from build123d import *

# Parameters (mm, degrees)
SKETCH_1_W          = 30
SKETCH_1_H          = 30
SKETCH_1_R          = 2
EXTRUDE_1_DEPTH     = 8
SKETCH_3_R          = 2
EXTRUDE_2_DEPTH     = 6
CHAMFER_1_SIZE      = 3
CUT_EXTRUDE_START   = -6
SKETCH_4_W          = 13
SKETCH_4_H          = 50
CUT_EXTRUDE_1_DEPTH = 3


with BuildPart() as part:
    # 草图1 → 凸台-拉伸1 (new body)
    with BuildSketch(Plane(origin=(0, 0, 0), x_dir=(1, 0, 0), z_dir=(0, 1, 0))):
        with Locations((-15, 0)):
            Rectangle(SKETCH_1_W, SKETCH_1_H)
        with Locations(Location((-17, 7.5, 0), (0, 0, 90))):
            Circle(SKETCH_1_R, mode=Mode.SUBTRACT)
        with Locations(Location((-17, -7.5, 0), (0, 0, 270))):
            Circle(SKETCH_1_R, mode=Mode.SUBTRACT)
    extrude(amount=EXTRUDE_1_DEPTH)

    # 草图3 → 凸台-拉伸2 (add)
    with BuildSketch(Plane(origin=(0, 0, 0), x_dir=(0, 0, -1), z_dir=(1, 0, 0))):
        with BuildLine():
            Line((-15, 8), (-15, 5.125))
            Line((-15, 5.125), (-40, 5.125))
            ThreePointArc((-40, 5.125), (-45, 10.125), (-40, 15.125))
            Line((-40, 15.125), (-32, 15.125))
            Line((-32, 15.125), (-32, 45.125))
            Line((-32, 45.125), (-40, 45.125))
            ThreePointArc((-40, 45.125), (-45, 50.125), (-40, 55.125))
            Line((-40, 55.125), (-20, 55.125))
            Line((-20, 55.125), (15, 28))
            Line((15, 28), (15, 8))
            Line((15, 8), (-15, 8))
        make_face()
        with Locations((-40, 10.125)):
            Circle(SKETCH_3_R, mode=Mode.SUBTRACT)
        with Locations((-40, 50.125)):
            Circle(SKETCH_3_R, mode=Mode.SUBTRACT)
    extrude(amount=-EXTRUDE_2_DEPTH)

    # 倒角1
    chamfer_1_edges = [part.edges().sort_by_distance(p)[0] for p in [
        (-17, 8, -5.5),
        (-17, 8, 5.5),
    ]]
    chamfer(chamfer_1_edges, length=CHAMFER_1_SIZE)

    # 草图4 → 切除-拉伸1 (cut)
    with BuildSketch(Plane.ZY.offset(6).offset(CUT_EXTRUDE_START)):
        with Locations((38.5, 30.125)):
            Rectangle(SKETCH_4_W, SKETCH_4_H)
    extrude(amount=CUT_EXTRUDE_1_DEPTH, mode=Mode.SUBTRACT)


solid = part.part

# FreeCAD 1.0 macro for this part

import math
import FreeCAD as App
import Part
import Sketcher

V = App.Vector
Q = App.Units.Quantity


def edges_at(feature, points):
    """Names of the edges that pass closest to the given points."""
    edges = feature.Shape.Edges
    near = lambda p: min(range(len(edges)), key=lambda i: edges[i].distToShape(Part.Vertex(*p))[0])
    return sorted({f"Edge{near(p) + 1}" for p in points})

doc = App.newDocument("Part")
params = doc.addObject("Spreadsheet::Sheet", "Params")
for row, (alias, value) in enumerate([
    ("sketch1_diameter", "4 mm"),
    ("sketch1_width", "30 mm"),
    ("pad1_length", "8 mm"),
    ("sketch2_diameter", "4 mm"),
    ("sketch2_radius", "5 mm"),
    ("sketch2_width", "20 mm"),
    ("sketch2_width2", "30 mm"),
    ("sketch2_height", "8 mm"),
    ("pad2_length", "6 mm"),
    ("chamfer_size", "3 mm"),
    ("sketch3_width", "50 mm"),
    ("sketch3_height", "13 mm"),
    ("pocket1_length", "3 mm"),
], start=1):
    params.set(f"A{row}", alias)
    params.set(f"B{row}", "=" + value)
    params.setAlias(f"B{row}", alias)

body = doc.addObject("PartDesign::Body", "Body")

sketch1 = body.newObject("Sketcher::SketchObject", "Sketch")
sketch1.AttachmentSupport = (doc.getObject("XZ_Plane"), [""])
sketch1.MapMode = "FlatFace"
sketch1.addGeometry(Part.LineSegment(V(-30, -15, 0), V(-30, 15, 0)), False)
sketch1.addGeometry(Part.LineSegment(V(-30, 15, 0), V(0, 15, 0)), False)
sketch1.addGeometry(Part.LineSegment(V(0, 15, 0), V(0, -15, 0)), False)
sketch1.addGeometry(Part.LineSegment(V(0, -15, 0), V(-30, -15, 0)), False)
sketch1.addGeometry(Part.Circle(V(-17, 7.5, 0), V(0, 0, 1), 2), False)
sketch1.addGeometry(Part.Circle(V(-17, -7.5, 0), V(0, 0, 1), 2), False)
sketch1.addConstraint(Sketcher.Constraint("Coincident", 0, 2, 1, 1))
sketch1.addConstraint(Sketcher.Constraint("Coincident", 1, 2, 2, 1))
sketch1.addConstraint(Sketcher.Constraint("Coincident", 2, 2, 3, 1))
sketch1.addConstraint(Sketcher.Constraint("Coincident", 3, 2, 0, 1))
sketch1.addConstraint(Sketcher.Constraint("Vertical", 0))
sketch1.addConstraint(Sketcher.Constraint("Horizontal", 1))
sketch1.addConstraint(Sketcher.Constraint("Vertical", 2))
sketch1.addConstraint(Sketcher.Constraint("Horizontal", 3))
sketch1.addConstraint(Sketcher.Constraint("Equal", 4, 5))
sketch1.addConstraint(Sketcher.Constraint("Symmetric", 1, 2, 2, 2, -1, 1))
sketch1.addConstraint(Sketcher.Constraint("Symmetric", 4, 3, 5, 3, -1))
sketch1.addConstraint(Sketcher.Constraint("Equal", 3, 0))
sketch1.addConstraint(Sketcher.Constraint("Diameter", 4, Q("4 mm")))
sketch1.addConstraint(Sketcher.Constraint("DistanceX", 1, 1, 1, 2, Q("30 mm")))
sketch1.addConstraint(Sketcher.Constraint("DistanceX", 4, 3, -1, 1, Q("17 mm")))
sketch1.addConstraint(Sketcher.Constraint("DistanceY", 5, 3, 4, 3, Q("15 mm")))
sketch1.setExpression("Constraints[12]", "Params.sketch1_diameter")
sketch1.setExpression("Constraints[13]", "Params.sketch1_width")
pad1 = body.newObject("PartDesign::Pad", "Pad")
pad1.Profile = sketch1
pad1.setExpression("Length", "Params.pad1_length")
pad1.Reversed = True

sketch2 = body.newObject("Sketcher::SketchObject", "Sketch001")
sketch2.AttachmentSupport = (doc.getObject("YZ_Plane"), [""])
sketch2.MapMode = "FlatFace"
sketch2.addGeometry(Part.LineSegment(V(5.1, 15, 0), V(8, 15, 0)), False)
sketch2.addGeometry(Part.LineSegment(V(8, 15, 0), V(8, -15, 0)), False)
sketch2.addGeometry(Part.LineSegment(V(8, -15, 0), V(28, -15, 0)), False)
sketch2.addGeometry(Part.LineSegment(V(28, -15, 0), V(55.1, 20, 0)), False)
sketch2.addGeometry(Part.LineSegment(V(55.1, 20, 0), V(55.1, 40, 0)), False)
sketch2.addGeometry(Part.ArcOfCircle(Part.Circle(V(50.1, 40, 0), V(0, 0, 1), 5), math.radians(0), math.radians(180)), False)
sketch2.addGeometry(Part.LineSegment(V(45.1, 40, 0), V(45.1, 32, 0)), False)
sketch2.addGeometry(Part.LineSegment(V(45.1, 32, 0), V(15.1, 32, 0)), False)
sketch2.addGeometry(Part.LineSegment(V(15.1, 32, 0), V(15.1, 40, 0)), False)
sketch2.addGeometry(Part.ArcOfCircle(Part.Circle(V(10.1, 40, 0), V(0, 0, 1), 5), math.radians(0), math.radians(180)), False)
sketch2.addGeometry(Part.LineSegment(V(5.1, 40, 0), V(5.1, 15, 0)), False)
sketch2.addGeometry(Part.Circle(V(10.1, 40, 0), V(0, 0, 1), 2), False)
sketch2.addGeometry(Part.Circle(V(50.1, 40, 0), V(0, 0, 1), 2), False)
sketch2.addConstraint(Sketcher.Constraint("Coincident", 0, 2, 1, 1))
sketch2.addConstraint(Sketcher.Constraint("Coincident", 1, 2, 2, 1))
sketch2.addConstraint(Sketcher.Constraint("Coincident", 2, 2, 3, 1))
sketch2.addConstraint(Sketcher.Constraint("Coincident", 3, 2, 4, 1))
sketch2.addConstraint(Sketcher.Constraint("Tangent", 4, 2, 5, 1))
sketch2.addConstraint(Sketcher.Constraint("Tangent", 5, 2, 6, 1))
sketch2.addConstraint(Sketcher.Constraint("Coincident", 6, 2, 7, 1))
sketch2.addConstraint(Sketcher.Constraint("Coincident", 7, 2, 8, 1))
sketch2.addConstraint(Sketcher.Constraint("Tangent", 8, 2, 9, 1))
sketch2.addConstraint(Sketcher.Constraint("Tangent", 9, 2, 10, 1))
sketch2.addConstraint(Sketcher.Constraint("Coincident", 10, 2, 0, 1))
sketch2.addConstraint(Sketcher.Constraint("Horizontal", 0))
sketch2.addConstraint(Sketcher.Constraint("Vertical", 1))
sketch2.addConstraint(Sketcher.Constraint("Horizontal", 2))
sketch2.addConstraint(Sketcher.Constraint("Vertical", 4))
sketch2.addConstraint(Sketcher.Constraint("Vertical", 6))
sketch2.addConstraint(Sketcher.Constraint("Horizontal", 7))
sketch2.addConstraint(Sketcher.Constraint("Vertical", 8))
sketch2.addConstraint(Sketcher.Constraint("Vertical", 10))
sketch2.addConstraint(Sketcher.Constraint("Coincident", 11, 3, 9, 3))
sketch2.addConstraint(Sketcher.Constraint("Coincident", 12, 3, 5, 3))
sketch2.addConstraint(Sketcher.Constraint("Equal", 5, 9))
sketch2.addConstraint(Sketcher.Constraint("Equal", 11, 12))
sketch2.addConstraint(Sketcher.Constraint("Horizontal", 5, 3, 9, 3))
sketch2.addConstraint(Sketcher.Constraint("Equal", 7, 1))
sketch2.addConstraint(Sketcher.Constraint("Equal", 2, 4))
sketch2.addConstraint(Sketcher.Constraint("Diameter", 11, Q("4 mm")))
sketch2.addConstraint(Sketcher.Constraint("Radius", 5, Q("5 mm")))
sketch2.addConstraint(Sketcher.Constraint("DistanceX", 2, 1, 2, 2, Q("20 mm")))
sketch2.addConstraint(Sketcher.Constraint("DistanceX", 7, 2, 7, 1, Q("30 mm")))
sketch2.addConstraint(Sketcher.Constraint("DistanceY", 6, 2, 6, 1, Q("8 mm")))
sketch2.addConstraint(Sketcher.Constraint("DistanceY", 10, 2, 10, 1, Q("25 mm")))
sketch2.addConstraint(Sketcher.Constraint("DistanceY", -1, 1, 5, 3, Q("40 mm")))
sketch2.addConstraint(Sketcher.Constraint("DistanceX", -1, 1, 0, 2, Q("8 mm")))
sketch2.addConstraint(Sketcher.Constraint("DistanceX", 0, 1, 0, 2, Q("2.875 mm")))
sketch2.setExpression("Constraints[26]", "Params.sketch2_diameter")
sketch2.setExpression("Constraints[27]", "Params.sketch2_radius")
sketch2.setExpression("Constraints[28]", "Params.sketch2_width")
sketch2.setExpression("Constraints[29]", "Params.sketch2_width2")
sketch2.setExpression("Constraints[30]", "Params.sketch2_height")
pad2 = body.newObject("PartDesign::Pad", "Pad001")
pad2.Profile = sketch2
pad2.setExpression("Length", "Params.pad2_length")
pad2.Reversed = True
doc.recompute()

chamfer = body.newObject("PartDesign::Chamfer", "Chamfer")
chamfer.Base = (pad2, edges_at(pad2, [(-17, 8, -5.5), (-17, 8, 5.5)]))
chamfer.setExpression("Size", "Params.chamfer_size")

sketch3 = body.newObject("Sketcher::SketchObject", "Sketch002")
sketch3.AttachmentSupport = (doc.getObject("YZ_Plane"), [""])
sketch3.MapMode = "FlatFace"
sketch3.addGeometry(Part.LineSegment(V(55, 32, 0), V(5, 32, 0)), False)
sketch3.addGeometry(Part.LineSegment(V(5, 32, 0), V(5, 45, 0)), False)
sketch3.addGeometry(Part.LineSegment(V(5, 45, 0), V(55, 45, 0)), False)
sketch3.addGeometry(Part.LineSegment(V(55, 45, 0), V(55, 32, 0)), False)
sketch3.addConstraint(Sketcher.Constraint("Coincident", 0, 2, 1, 1))
sketch3.addConstraint(Sketcher.Constraint("Coincident", 1, 2, 2, 1))
sketch3.addConstraint(Sketcher.Constraint("Coincident", 2, 2, 3, 1))
sketch3.addConstraint(Sketcher.Constraint("Coincident", 3, 2, 0, 1))
sketch3.addConstraint(Sketcher.Constraint("Horizontal", 0))
sketch3.addConstraint(Sketcher.Constraint("Vertical", 1))
sketch3.addConstraint(Sketcher.Constraint("Horizontal", 2))
sketch3.addConstraint(Sketcher.Constraint("Vertical", 3))
sketch3.addConstraint(Sketcher.Constraint("DistanceX", 0, 2, 0, 1, Q("50 mm")))
sketch3.addConstraint(Sketcher.Constraint("DistanceY", 1, 1, 1, 2, Q("13 mm")))
sketch3.addConstraint(Sketcher.Constraint("DistanceY", -1, 1, 0, 2, Q("32 mm")))
sketch3.addConstraint(Sketcher.Constraint("DistanceX", -1, 1, 0, 2, Q("5.125 mm")))
sketch3.setExpression("Constraints[8]", "Params.sketch3_width")
sketch3.setExpression("Constraints[9]", "Params.sketch3_height")
pocket1 = body.newObject("PartDesign::Pocket", "Pocket")
pocket1.Profile = sketch3
pocket1.setExpression("Length", "Params.pocket1_length")

doc.recompute()
